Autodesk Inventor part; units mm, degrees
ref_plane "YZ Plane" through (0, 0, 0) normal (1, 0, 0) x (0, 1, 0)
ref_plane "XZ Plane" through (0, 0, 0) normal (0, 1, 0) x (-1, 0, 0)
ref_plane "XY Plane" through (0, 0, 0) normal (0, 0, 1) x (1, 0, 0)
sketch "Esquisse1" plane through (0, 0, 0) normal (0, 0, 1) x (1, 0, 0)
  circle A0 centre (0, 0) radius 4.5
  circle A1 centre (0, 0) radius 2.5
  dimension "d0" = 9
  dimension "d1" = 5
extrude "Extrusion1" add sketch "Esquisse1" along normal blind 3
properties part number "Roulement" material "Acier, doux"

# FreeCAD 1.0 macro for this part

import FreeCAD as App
import Part
import Sketcher

V = App.Vector
Q = App.Units.Quantity

doc = App.newDocument("Part")
body = doc.addObject("PartDesign::Body", "Body")

# Sketch on XY plane
sketch1 = body.newObject("Sketcher::SketchObject", "Sketch")
sketch1.AttachmentSupport = (doc.getObject("XY_Plane"), [""])
sketch1.MapMode = "FlatFace"
sketch1.addGeometry([
    Part.Circle(V(0, 0, 0), V(0, 0, 1), 4.5),
    Part.Circle(V(0, 0, 0), V(0, 0, 1), 2.5),
], False)
sketch1.addConstraint([
    Sketcher.Constraint("Coincident", 0, 3, -1, 1),
    Sketcher.Constraint("Coincident", 1, 3, -1, 1),
    Sketcher.Constraint("Diameter", 0, Q("9 mm")),
    Sketcher.Constraint("Diameter", 1, Q("5 mm")),
])
pad1 = body.newObject("PartDesign::Pad", "Pad")
pad1.Profile = sketch1
pad1.Length = 3

doc.recompute()
